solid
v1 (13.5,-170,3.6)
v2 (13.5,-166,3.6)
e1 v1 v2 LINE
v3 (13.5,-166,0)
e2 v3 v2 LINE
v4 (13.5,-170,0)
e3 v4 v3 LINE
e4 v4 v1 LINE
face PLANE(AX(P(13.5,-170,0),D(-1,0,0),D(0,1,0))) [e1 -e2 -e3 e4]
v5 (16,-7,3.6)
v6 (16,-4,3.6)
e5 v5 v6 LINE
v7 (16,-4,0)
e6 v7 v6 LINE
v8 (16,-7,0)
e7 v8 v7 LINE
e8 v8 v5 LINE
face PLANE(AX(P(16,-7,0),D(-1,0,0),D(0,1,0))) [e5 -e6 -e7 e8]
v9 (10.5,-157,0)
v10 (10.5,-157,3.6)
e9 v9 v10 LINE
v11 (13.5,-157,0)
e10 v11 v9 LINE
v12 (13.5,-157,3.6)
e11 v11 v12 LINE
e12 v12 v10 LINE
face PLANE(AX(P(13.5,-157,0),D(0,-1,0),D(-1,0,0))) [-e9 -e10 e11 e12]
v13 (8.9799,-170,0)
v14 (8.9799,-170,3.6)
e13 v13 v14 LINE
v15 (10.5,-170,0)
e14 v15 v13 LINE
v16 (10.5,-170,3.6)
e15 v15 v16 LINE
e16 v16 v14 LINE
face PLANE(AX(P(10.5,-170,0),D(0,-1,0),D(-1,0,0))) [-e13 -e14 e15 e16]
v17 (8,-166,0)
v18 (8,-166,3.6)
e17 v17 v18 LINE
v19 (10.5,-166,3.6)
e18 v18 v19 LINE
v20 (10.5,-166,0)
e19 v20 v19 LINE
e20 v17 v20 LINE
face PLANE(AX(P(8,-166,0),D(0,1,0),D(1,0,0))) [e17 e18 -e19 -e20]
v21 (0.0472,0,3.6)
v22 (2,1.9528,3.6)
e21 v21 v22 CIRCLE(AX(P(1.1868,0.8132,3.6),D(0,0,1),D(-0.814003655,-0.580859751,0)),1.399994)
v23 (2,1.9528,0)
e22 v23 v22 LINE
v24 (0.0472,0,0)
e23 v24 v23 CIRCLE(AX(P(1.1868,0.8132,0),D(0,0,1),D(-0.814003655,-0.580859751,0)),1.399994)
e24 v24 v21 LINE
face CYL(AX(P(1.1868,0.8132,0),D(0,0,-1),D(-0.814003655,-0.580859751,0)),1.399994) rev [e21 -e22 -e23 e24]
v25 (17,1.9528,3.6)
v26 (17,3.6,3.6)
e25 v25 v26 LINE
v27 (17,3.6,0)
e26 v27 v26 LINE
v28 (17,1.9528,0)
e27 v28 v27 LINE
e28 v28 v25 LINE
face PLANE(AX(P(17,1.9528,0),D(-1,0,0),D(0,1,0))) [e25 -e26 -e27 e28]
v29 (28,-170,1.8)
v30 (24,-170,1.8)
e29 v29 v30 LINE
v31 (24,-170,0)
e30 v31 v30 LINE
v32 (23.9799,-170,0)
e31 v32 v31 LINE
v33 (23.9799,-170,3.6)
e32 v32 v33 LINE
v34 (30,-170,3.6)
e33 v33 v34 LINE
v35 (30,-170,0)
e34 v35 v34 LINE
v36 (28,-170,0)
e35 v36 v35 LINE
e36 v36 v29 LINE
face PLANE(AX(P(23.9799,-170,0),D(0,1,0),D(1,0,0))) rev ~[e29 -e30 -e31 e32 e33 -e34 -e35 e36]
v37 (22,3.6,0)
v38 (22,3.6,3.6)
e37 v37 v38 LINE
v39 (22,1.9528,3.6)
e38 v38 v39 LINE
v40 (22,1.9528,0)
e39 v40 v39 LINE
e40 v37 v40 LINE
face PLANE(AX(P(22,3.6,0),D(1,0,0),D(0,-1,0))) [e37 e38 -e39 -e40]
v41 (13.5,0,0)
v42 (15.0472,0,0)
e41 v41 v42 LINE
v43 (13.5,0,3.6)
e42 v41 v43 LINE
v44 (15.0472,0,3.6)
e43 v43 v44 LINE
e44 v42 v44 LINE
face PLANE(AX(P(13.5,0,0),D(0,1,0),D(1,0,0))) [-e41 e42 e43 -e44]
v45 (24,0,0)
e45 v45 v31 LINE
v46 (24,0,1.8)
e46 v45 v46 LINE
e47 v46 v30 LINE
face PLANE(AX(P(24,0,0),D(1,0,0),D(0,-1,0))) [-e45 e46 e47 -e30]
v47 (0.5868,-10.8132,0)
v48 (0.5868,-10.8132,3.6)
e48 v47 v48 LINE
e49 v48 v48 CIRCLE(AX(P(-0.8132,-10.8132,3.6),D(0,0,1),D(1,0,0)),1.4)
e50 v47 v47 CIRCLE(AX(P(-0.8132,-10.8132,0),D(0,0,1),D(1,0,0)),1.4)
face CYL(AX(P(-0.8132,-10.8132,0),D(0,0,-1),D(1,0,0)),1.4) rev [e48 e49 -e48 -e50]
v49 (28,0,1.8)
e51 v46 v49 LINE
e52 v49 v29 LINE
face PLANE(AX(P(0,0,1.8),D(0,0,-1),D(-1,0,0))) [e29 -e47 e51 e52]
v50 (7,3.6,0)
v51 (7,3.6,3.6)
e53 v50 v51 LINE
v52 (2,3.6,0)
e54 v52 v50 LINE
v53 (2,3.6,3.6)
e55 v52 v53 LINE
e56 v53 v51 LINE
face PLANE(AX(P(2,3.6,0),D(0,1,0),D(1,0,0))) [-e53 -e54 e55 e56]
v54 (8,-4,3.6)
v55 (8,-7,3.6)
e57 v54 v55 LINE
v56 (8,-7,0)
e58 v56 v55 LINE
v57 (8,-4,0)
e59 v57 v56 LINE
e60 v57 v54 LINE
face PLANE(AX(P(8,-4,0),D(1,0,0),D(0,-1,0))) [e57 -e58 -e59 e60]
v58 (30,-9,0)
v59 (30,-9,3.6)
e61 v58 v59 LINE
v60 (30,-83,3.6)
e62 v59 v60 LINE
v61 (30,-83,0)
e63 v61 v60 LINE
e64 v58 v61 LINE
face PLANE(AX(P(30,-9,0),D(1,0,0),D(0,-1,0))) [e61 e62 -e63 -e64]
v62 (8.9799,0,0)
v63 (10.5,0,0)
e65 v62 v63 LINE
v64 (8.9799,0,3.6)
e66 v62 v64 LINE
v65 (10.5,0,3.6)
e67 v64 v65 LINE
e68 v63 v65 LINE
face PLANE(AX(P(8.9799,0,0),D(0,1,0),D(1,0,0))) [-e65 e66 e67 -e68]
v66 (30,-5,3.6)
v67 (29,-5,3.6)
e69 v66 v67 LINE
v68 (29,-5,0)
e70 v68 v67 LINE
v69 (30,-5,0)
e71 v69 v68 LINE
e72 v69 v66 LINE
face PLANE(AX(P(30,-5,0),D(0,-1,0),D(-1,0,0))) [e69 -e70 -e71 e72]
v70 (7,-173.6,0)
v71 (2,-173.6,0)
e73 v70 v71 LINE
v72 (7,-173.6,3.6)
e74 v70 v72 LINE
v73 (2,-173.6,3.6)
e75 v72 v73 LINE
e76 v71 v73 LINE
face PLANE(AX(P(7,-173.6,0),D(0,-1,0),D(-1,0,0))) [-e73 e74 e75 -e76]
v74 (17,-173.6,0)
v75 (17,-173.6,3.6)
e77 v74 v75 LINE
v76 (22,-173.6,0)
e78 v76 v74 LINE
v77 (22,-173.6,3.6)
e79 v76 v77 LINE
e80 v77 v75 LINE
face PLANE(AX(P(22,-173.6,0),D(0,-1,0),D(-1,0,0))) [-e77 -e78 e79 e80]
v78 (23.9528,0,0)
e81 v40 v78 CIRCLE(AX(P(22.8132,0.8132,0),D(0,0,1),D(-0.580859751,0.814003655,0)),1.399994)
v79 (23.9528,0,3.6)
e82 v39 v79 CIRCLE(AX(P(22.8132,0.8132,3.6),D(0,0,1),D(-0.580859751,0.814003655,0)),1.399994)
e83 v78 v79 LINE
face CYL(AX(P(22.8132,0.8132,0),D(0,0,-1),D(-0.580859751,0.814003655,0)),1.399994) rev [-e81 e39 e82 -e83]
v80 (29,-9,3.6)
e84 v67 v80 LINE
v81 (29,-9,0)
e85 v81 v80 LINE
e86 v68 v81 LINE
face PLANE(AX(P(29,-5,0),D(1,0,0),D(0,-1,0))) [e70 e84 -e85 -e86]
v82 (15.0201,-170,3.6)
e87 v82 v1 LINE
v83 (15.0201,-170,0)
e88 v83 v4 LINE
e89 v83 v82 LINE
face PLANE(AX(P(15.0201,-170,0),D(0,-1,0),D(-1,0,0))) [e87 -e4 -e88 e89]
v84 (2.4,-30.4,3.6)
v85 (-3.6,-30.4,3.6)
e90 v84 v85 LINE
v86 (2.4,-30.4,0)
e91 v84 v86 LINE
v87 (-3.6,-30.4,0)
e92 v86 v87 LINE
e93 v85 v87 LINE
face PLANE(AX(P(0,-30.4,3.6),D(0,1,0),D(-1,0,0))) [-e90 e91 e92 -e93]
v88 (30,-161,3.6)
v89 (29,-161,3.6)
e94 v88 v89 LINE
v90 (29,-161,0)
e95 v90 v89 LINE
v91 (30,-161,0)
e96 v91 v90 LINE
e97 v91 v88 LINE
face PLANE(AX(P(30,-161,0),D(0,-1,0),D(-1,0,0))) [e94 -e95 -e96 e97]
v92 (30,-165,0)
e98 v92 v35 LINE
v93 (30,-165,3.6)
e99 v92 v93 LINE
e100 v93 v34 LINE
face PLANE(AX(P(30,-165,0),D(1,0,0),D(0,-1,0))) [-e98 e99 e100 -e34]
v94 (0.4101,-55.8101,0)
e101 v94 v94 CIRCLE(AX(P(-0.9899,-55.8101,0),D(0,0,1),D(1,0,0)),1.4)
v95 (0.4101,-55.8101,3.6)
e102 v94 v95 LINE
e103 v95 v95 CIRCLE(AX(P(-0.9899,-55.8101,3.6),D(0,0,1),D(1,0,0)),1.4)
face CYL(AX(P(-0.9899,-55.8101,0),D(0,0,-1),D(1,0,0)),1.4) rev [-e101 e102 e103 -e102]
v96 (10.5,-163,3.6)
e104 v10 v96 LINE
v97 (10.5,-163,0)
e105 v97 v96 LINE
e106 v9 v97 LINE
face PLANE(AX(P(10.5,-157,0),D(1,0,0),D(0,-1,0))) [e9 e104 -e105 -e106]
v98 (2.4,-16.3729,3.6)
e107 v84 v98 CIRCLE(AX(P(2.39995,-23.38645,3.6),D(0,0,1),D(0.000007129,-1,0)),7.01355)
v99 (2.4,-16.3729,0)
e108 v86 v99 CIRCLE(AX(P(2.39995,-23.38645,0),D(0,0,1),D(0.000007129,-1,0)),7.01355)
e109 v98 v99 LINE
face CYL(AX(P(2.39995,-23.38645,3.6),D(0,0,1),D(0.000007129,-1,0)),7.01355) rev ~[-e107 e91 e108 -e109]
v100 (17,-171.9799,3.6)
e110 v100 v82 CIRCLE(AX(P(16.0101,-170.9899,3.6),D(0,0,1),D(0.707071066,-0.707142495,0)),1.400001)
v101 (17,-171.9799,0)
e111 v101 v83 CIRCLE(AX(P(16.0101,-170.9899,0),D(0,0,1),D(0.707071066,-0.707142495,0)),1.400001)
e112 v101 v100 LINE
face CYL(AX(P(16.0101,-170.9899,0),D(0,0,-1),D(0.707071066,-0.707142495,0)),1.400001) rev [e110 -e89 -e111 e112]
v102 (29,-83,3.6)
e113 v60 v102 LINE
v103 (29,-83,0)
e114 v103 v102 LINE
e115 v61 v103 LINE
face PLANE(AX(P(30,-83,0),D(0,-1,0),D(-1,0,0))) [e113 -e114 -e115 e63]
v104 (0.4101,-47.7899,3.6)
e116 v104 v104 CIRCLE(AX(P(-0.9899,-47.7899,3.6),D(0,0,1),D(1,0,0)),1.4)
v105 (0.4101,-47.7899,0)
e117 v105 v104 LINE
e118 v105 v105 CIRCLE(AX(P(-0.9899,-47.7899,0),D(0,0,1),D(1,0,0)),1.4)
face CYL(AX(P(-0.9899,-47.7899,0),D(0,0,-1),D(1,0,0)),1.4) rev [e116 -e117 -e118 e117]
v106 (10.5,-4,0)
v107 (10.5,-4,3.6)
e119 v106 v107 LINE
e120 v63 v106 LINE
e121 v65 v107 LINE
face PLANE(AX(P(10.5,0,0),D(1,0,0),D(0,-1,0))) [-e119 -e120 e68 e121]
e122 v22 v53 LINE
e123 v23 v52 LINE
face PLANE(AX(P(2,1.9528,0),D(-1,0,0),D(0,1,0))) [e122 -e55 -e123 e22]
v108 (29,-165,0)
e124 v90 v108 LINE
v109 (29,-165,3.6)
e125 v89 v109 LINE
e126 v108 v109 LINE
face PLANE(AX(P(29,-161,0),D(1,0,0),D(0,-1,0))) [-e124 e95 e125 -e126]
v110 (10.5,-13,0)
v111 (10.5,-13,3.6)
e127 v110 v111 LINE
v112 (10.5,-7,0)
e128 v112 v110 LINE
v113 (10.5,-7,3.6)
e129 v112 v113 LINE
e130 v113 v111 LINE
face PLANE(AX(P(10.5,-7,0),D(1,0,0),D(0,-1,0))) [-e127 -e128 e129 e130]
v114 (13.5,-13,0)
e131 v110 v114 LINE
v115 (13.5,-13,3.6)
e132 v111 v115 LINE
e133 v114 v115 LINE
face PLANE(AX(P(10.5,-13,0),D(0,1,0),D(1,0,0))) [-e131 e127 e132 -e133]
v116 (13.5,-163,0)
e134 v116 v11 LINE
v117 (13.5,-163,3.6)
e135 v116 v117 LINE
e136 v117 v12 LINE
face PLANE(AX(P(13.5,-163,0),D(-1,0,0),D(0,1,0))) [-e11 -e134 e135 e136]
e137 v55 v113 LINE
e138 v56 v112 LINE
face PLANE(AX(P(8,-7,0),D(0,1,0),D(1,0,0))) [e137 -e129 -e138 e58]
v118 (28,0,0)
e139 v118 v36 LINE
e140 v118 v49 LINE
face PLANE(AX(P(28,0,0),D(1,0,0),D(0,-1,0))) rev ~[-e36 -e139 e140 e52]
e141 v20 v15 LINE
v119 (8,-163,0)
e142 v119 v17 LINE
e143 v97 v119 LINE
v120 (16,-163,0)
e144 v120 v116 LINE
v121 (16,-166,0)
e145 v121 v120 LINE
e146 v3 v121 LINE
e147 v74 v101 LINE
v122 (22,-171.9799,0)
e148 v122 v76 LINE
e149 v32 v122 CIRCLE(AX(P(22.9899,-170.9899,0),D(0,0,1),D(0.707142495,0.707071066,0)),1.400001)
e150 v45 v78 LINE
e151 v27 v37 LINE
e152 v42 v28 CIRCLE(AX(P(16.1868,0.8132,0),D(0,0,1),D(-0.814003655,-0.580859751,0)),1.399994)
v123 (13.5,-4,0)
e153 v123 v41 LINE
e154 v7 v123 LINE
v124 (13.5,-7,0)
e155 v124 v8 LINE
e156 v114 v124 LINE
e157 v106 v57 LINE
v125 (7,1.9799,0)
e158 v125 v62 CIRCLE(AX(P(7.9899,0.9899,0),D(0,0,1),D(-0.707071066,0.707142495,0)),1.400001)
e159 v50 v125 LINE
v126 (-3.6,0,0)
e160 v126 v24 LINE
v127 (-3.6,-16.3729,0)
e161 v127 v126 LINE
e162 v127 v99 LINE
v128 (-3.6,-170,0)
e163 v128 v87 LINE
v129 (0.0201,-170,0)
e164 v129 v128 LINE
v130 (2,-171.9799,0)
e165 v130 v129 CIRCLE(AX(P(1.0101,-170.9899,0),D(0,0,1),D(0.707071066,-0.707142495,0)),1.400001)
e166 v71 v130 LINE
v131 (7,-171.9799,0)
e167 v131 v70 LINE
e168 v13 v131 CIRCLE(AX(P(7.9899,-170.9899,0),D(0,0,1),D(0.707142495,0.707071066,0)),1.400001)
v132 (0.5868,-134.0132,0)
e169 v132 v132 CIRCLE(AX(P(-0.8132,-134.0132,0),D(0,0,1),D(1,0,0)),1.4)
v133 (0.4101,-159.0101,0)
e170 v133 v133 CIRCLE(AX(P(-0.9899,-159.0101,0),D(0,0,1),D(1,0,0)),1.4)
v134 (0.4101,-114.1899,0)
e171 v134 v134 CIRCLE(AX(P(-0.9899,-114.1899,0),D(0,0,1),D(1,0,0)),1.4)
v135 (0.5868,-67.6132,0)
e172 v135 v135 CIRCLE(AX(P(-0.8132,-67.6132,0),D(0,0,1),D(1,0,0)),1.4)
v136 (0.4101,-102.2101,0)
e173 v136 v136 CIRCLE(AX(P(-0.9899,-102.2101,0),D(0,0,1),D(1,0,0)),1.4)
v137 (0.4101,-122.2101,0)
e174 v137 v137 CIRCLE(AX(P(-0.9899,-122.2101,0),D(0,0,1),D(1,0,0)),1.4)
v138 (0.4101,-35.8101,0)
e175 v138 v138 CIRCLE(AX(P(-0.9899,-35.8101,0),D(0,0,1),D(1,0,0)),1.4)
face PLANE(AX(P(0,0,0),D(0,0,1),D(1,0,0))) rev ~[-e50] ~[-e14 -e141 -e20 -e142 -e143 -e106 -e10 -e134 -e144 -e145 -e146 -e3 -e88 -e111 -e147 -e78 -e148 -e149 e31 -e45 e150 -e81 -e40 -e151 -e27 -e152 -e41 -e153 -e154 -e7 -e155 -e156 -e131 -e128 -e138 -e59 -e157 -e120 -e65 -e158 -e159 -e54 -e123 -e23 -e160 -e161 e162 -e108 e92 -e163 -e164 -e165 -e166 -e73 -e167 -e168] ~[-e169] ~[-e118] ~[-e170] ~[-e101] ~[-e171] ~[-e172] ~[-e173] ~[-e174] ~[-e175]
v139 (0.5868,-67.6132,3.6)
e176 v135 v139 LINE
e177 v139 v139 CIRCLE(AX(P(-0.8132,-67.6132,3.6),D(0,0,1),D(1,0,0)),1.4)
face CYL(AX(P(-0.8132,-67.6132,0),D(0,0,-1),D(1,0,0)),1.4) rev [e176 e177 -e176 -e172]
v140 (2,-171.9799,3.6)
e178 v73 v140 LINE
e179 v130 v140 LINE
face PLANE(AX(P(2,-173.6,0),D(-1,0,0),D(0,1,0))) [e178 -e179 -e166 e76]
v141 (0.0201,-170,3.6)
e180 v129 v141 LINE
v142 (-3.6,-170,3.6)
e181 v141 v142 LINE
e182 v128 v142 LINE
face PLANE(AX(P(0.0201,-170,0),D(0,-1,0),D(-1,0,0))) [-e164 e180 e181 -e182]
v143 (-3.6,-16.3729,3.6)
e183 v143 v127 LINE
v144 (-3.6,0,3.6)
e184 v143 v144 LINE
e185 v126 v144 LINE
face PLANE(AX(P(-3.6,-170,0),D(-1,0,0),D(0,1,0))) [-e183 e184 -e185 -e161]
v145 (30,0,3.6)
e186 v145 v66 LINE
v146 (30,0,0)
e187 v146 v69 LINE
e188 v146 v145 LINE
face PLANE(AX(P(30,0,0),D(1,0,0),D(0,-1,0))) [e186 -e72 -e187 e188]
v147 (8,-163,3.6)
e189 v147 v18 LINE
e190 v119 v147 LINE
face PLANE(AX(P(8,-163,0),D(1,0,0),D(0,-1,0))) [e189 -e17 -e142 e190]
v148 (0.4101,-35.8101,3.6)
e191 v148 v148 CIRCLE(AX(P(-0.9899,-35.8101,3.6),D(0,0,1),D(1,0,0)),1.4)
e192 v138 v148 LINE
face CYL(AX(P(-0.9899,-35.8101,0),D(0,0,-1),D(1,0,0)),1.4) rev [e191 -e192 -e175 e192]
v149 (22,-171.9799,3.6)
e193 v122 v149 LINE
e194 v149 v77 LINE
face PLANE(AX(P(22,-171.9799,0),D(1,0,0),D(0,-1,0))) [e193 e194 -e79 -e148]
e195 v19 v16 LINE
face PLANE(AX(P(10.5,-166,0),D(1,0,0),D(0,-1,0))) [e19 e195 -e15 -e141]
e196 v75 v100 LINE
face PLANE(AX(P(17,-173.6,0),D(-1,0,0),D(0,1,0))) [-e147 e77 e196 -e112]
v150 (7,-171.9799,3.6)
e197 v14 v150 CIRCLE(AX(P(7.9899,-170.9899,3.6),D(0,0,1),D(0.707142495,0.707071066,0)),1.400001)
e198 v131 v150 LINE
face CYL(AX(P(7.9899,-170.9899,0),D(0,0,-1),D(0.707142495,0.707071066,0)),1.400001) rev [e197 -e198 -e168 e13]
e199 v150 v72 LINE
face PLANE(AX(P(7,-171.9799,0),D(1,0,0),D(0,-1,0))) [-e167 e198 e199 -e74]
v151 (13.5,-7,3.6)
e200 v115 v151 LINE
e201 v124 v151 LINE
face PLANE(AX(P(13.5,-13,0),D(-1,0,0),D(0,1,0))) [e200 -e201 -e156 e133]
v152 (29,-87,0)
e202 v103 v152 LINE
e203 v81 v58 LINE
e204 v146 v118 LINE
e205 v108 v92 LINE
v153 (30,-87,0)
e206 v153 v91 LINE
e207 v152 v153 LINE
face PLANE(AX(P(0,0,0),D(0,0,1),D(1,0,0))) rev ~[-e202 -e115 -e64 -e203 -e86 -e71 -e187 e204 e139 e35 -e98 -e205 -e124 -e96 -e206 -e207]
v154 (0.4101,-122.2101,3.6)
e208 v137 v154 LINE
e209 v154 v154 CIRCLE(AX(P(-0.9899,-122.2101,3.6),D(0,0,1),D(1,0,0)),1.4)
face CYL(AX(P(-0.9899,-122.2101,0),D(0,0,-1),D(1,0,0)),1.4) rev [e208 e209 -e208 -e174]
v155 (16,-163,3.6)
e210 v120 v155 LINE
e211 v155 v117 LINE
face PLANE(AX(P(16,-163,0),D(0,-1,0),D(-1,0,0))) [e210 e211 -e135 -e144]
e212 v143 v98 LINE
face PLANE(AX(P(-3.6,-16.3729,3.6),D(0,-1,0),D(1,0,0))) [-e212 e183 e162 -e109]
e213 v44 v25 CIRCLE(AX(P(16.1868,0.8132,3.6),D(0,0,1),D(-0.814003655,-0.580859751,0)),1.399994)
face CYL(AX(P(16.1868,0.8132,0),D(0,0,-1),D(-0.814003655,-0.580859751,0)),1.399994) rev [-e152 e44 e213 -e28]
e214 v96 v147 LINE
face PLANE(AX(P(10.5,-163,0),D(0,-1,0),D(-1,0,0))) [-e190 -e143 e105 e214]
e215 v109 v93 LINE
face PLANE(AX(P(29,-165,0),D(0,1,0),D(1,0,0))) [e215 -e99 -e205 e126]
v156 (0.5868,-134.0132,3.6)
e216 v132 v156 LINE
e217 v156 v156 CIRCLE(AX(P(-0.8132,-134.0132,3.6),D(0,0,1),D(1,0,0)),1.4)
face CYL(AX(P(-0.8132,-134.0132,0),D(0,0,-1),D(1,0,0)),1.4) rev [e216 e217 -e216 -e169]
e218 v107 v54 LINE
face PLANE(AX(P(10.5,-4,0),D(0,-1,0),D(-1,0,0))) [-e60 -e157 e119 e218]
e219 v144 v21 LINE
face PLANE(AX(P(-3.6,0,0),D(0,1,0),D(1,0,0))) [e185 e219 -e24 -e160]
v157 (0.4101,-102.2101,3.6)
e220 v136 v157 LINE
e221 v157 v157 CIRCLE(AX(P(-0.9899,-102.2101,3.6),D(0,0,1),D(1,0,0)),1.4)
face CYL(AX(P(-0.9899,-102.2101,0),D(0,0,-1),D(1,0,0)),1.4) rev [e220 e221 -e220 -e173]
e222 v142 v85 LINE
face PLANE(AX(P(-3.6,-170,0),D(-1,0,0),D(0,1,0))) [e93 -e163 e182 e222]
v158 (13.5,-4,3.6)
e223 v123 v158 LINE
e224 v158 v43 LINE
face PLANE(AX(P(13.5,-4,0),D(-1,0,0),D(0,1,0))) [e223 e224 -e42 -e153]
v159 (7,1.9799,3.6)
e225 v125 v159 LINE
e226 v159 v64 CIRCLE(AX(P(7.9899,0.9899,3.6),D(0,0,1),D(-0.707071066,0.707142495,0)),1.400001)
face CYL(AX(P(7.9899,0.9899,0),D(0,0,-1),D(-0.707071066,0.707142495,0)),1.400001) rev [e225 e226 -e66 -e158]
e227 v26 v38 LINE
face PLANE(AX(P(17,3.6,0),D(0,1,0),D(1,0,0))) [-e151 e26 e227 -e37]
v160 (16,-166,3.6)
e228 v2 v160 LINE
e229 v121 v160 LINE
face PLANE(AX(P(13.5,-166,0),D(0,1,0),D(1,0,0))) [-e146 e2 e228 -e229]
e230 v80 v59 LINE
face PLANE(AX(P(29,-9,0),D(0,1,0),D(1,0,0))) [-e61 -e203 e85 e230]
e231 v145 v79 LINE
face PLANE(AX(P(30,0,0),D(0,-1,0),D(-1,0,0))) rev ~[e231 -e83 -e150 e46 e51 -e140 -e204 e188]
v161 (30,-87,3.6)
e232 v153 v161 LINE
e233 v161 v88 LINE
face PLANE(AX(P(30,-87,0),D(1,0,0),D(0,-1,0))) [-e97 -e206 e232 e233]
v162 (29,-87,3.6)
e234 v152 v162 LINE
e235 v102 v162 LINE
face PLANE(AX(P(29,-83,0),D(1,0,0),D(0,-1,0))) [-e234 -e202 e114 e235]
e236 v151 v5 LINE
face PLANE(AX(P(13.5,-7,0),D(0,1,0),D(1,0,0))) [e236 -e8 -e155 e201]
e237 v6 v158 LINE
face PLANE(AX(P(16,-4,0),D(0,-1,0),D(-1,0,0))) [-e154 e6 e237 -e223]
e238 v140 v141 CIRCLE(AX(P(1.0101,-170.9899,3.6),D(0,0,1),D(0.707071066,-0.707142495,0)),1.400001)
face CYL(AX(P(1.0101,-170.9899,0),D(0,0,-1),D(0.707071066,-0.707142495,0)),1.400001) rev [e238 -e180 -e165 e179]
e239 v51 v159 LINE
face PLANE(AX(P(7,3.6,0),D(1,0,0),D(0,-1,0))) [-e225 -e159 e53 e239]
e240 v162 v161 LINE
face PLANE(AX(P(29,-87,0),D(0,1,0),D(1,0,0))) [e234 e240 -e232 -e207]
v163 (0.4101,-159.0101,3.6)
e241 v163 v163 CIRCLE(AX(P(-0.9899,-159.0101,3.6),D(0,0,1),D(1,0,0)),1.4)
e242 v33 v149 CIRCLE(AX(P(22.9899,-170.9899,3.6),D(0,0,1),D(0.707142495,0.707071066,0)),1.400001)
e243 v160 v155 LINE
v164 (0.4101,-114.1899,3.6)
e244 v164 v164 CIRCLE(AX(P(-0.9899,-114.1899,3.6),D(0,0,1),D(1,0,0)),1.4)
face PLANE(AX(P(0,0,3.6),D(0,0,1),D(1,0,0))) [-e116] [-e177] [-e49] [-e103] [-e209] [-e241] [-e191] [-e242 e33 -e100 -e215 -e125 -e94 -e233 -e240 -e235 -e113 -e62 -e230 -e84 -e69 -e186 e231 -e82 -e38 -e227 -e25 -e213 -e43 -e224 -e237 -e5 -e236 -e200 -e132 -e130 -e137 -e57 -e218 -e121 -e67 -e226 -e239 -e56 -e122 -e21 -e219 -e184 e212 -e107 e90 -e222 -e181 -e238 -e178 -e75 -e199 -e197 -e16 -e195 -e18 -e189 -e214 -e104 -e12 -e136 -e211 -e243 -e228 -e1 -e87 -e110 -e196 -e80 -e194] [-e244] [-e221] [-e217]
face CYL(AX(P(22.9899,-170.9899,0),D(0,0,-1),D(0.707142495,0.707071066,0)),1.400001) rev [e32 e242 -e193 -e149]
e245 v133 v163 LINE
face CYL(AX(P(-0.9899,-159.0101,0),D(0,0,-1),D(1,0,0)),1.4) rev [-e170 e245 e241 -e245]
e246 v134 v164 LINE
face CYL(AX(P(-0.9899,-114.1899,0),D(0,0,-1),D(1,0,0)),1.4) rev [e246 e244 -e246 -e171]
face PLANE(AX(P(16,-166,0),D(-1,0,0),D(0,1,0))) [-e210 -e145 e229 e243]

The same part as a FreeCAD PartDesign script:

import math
import FreeCAD as App
import Part
import Sketcher
from FreeCAD import Vector
Q = App.Units.Quantity


def add_polygon(sketch, points):
    """Adds a closed chain of lines whose ends are joined by coincident constraints."""
    first, n = sketch.GeometryCount, len(points)
    for a, b in zip(points, points[1:] + points[:1]):
        sketch.addGeometry(Part.LineSegment(App.Vector(*a, 0), App.Vector(*b, 0)), False)
    for i in range(n):
        sketch.addConstraint(Sketcher.Constraint("Coincident", first + i, 2, first + (i + 1) % n, 1))

doc = App.newDocument("Part")
body = doc.addObject("PartDesign::Body", "Body")

# Sketch on XY plane
sketch1 = body.newObject("Sketcher::SketchObject", "Sketch")
sketch1.AttachmentSupport = (doc.getObject("XY_Plane"), [""])
sketch1.MapMode = "FlatFace"
sketch1.addGeometry(Part.LineSegment(Vector(30, -5, 0), Vector(30, 0, 0)), False)
sketch1.addGeometry(Part.LineSegment(Vector(30, 0, 0), Vector(23.9528, 0, 0)), False)
sketch1.addGeometry(Part.ArcOfCircle(Part.Circle(Vector(22.8132, 0.8132, 0), Vector(0, 0, 1), 1.399994), math.radians(125.511036), math.radians(324.488964)), False)
sketch1.addGeometry(Part.LineSegment(Vector(22, 1.9528, 0), Vector(22, 3.6, 0)), False)
sketch1.addGeometry(Part.LineSegment(Vector(22, 3.6, 0), Vector(17, 3.6, 0)), False)
sketch1.addGeometry(Part.LineSegment(Vector(17, 3.6, 0), Vector(17, 1.9528, 0)), False)
sketch1.addGeometry(Part.ArcOfCircle(Part.Circle(Vector(16.1868, 0.8132, 0), Vector(0, 0, 1), 1.399994), math.radians(-144.488964), math.radians(54.488964)), False)
sketch1.addGeometry(Part.LineSegment(Vector(15.0472, 0, 0), Vector(13.5, 0, 0)), False)
sketch1.addGeometry(Part.LineSegment(Vector(13.5, 0, 0), Vector(13.5, -4, 0)), False)
sketch1.addGeometry(Part.LineSegment(Vector(13.5, -4, 0), Vector(16, -4, 0)), False)
sketch1.addGeometry(Part.LineSegment(Vector(16, -4, 0), Vector(16, -7, 0)), False)
sketch1.addGeometry(Part.LineSegment(Vector(16, -7, 0), Vector(13.5, -7, 0)), False)
sketch1.addGeometry(Part.LineSegment(Vector(13.5, -7, 0), Vector(13.5, -13, 0)), False)
sketch1.addGeometry(Part.LineSegment(Vector(13.5, -13, 0), Vector(10.5, -13, 0)), False)
sketch1.addGeometry(Part.LineSegment(Vector(10.5, -13, 0), Vector(10.5, -7, 0)), False)
sketch1.addGeometry(Part.LineSegment(Vector(10.5, -7, 0), Vector(8, -7, 0)), False)
sketch1.addGeometry(Part.LineSegment(Vector(8, -7, 0), Vector(8, -4, 0)), False)
sketch1.addGeometry(Part.LineSegment(Vector(8, -4, 0), Vector(10.5, -4, 0)), False)
sketch1.addGeometry(Part.LineSegment(Vector(10.5, -4, 0), Vector(10.5, 0, 0)), False)
sketch1.addGeometry(Part.LineSegment(Vector(10.5, 0, 0), Vector(8.9799, 0, 0)), False)
sketch1.addGeometry(Part.ArcOfCircle(Part.Circle(Vector(7.9899, 0.9899, 0), Vector(0, 0, 1), 1.400001), math.radians(134.997106), math.radians(315.002894)), False)
sketch1.addGeometry(Part.LineSegment(Vector(7, 1.9799, 0), Vector(7, 3.6, 0)), False)
sketch1.addGeometry(Part.LineSegment(Vector(7, 3.6, 0), Vector(2, 3.6, 0)), False)
sketch1.addGeometry(Part.LineSegment(Vector(2, 3.6, 0), Vector(2, 1.9528, 0)), False)
sketch1.addGeometry(Part.ArcOfCircle(Part.Circle(Vector(1.1868, 0.8132, 0), Vector(0, 0, 1), 1.399994), math.radians(-144.488964), math.radians(54.488964)), False)
sketch1.addGeometry(Part.LineSegment(Vector(0.0472, 0, 0), Vector(-3.6, 0, 0)), False)
sketch1.addGeometry(Part.LineSegment(Vector(-3.6, 0, 0), Vector(-3.6, -170, 0)), False)
sketch1.addGeometry(Part.LineSegment(Vector(-3.6, -170, 0), Vector(0.0201, -170, 0)), False)
sketch1.addGeometry(Part.ArcOfCircle(Part.Circle(Vector(1.0101, -170.9899, 0), Vector(0, 0, 1), 1.400001), math.radians(-45.002894), math.radians(135.002894)), False)
sketch1.addGeometry(Part.LineSegment(Vector(2, -171.9799, 0), Vector(2, -173.6, 0)), False)
sketch1.addGeometry(Part.LineSegment(Vector(2, -173.6, 0), Vector(7, -173.6, 0)), False)
sketch1.addGeometry(Part.LineSegment(Vector(7, -173.6, 0), Vector(7, -171.9799, 0)), False)
sketch1.addGeometry(Part.ArcOfCircle(Part.Circle(Vector(7.9899, -170.9899, 0), Vector(0, 0, 1), 1.400001), math.radians(44.997106), math.radians(225.002894)), False)
sketch1.addGeometry(Part.LineSegment(Vector(8.9799, -170, 0), Vector(10.5, -170, 0)), False)
sketch1.addGeometry(Part.LineSegment(Vector(10.5, -170, 0), Vector(10.5, -166, 0)), False)
sketch1.addGeometry(Part.LineSegment(Vector(10.5, -166, 0), Vector(8, -166, 0)), False)
sketch1.addGeometry(Part.LineSegment(Vector(8, -166, 0), Vector(8, -163, 0)), False)
sketch1.addGeometry(Part.LineSegment(Vector(8, -163, 0), Vector(10.5, -163, 0)), False)
sketch1.addGeometry(Part.LineSegment(Vector(10.5, -163, 0), Vector(10.5, -157, 0)), False)
sketch1.addGeometry(Part.LineSegment(Vector(10.5, -157, 0), Vector(13.5, -157, 0)), False)
sketch1.addGeometry(Part.LineSegment(Vector(13.5, -157, 0), Vector(13.5, -163, 0)), False)
sketch1.addGeometry(Part.LineSegment(Vector(13.5, -163, 0), Vector(16, -163, 0)), False)
sketch1.addGeometry(Part.LineSegment(Vector(16, -163, 0), Vector(16, -166, 0)), False)
sketch1.addGeometry(Part.LineSegment(Vector(16, -166, 0), Vector(13.5, -166, 0)), False)
sketch1.addGeometry(Part.LineSegment(Vector(13.5, -166, 0), Vector(13.5, -170, 0)), False)
sketch1.addGeometry(Part.LineSegment(Vector(13.5, -170, 0), Vector(15.0201, -170, 0)), False)
sketch1.addGeometry(Part.ArcOfCircle(Part.Circle(Vector(16.0101, -170.9899, 0), Vector(0, 0, 1), 1.400001), math.radians(-45.002894), math.radians(135.002894)), False)
sketch1.addGeometry(Part.LineSegment(Vector(17, -171.9799, 0), Vector(17, -173.6, 0)), False)
sketch1.addGeometry(Part.LineSegment(Vector(17, -173.6, 0), Vector(22, -173.6, 0)), False)
sketch1.addGeometry(Part.LineSegment(Vector(22, -173.6, 0), Vector(22, -171.9799, 0)), False)
sketch1.addGeometry(Part.ArcOfCircle(Part.Circle(Vector(22.9899, -170.9899, 0), Vector(0, 0, 1), 1.400001), math.radians(44.997106), math.radians(225.002894)), False)
sketch1.addGeometry(Part.LineSegment(Vector(23.9799, -170, 0), Vector(30, -170, 0)), False)
sketch1.addGeometry(Part.LineSegment(Vector(30, -170, 0), Vector(30, -165, 0)), False)
sketch1.addGeometry(Part.LineSegment(Vector(30, -165, 0), Vector(29, -165, 0)), False)
sketch1.addGeometry(Part.LineSegment(Vector(29, -165, 0), Vector(29, -161, 0)), False)
sketch1.addGeometry(Part.LineSegment(Vector(29, -161, 0), Vector(30, -161, 0)), False)
sketch1.addGeometry(Part.LineSegment(Vector(30, -161, 0), Vector(30, -87, 0)), False)
sketch1.addGeometry(Part.LineSegment(Vector(30, -87, 0), Vector(29, -87, 0)), False)
sketch1.addGeometry(Part.LineSegment(Vector(29, -87, 0), Vector(29, -83, 0)), False)
sketch1.addGeometry(Part.LineSegment(Vector(29, -83, 0), Vector(30, -83, 0)), False)
sketch1.addGeometry(Part.LineSegment(Vector(30, -83, 0), Vector(30, -9, 0)), False)
sketch1.addGeometry(Part.LineSegment(Vector(30, -9, 0), Vector(29, -9, 0)), False)
sketch1.addGeometry(Part.LineSegment(Vector(29, -9, 0), Vector(29, -5, 0)), False)
sketch1.addGeometry(Part.LineSegment(Vector(29, -5, 0), Vector(30, -5, 0)), False)
sketch1.addGeometry(Part.Circle(Vector(-0.9899, -159.0101, 0), Vector(0, 0, 1), 1.4), False)
sketch1.addGeometry(Part.Circle(Vector(-0.8132, -134.0132, 0), Vector(0, 0, 1), 1.4), False)
sketch1.addGeometry(Part.Circle(Vector(-0.9899, -122.2101, 0), Vector(0, 0, 1), 1.4), False)
sketch1.addGeometry(Part.Circle(Vector(-0.9899, -114.1899, 0), Vector(0, 0, 1), 1.4), False)
sketch1.addGeometry(Part.Circle(Vector(-0.9899, -102.2101, 0), Vector(0, 0, 1), 1.4), False)
sketch1.addGeometry(Part.Circle(Vector(-0.8132, -67.6132, 0), Vector(0, 0, 1), 1.4), False)
sketch1.addGeometry(Part.Circle(Vector(-0.9899, -55.8101, 0), Vector(0, 0, 1), 1.4), False)
sketch1.addGeometry(Part.Circle(Vector(-0.9899, -47.7899, 0), Vector(0, 0, 1), 1.4), False)
sketch1.addGeometry(Part.Circle(Vector(-0.9899, -35.8101, 0), Vector(0, 0, 1), 1.4), False)
sketch1.addGeometry(Part.Circle(Vector(-0.8132, -10.8132, 0), Vector(0, 0, 1), 1.4), False)
sketch1.addConstraint(Sketcher.Constraint("Coincident", 0, 2, 1, 1))
sketch1.addConstraint(Sketcher.Constraint("Coincident", 1, 2, 2, 2))
sketch1.addConstraint(Sketcher.Constraint("Coincident", 2, 1, 3, 1))
sketch1.addConstraint(Sketcher.Constraint("Coincident", 3, 2, 4, 1))
sketch1.addConstraint(Sketcher.Constraint("Coincident", 4, 2, 5, 1))
sketch1.addConstraint(Sketcher.Constraint("Coincident", 5, 2, 6, 2))
sketch1.addConstraint(Sketcher.Constraint("Coincident", 6, 1, 7, 1))
sketch1.addConstraint(Sketcher.Constraint("Coincident", 7, 2, 8, 1))
sketch1.addConstraint(Sketcher.Constraint("Coincident", 8, 2, 9, 1))
sketch1.addConstraint(Sketcher.Constraint("Coincident", 9, 2, 10, 1))
sketch1.addConstraint(Sketcher.Constraint("Coincident", 10, 2, 11, 1))
sketch1.addConstraint(Sketcher.Constraint("Coincident", 11, 2, 12, 1))
sketch1.addConstraint(Sketcher.Constraint("Coincident", 12, 2, 13, 1))
sketch1.addConstraint(Sketcher.Constraint("Coincident", 13, 2, 14, 1))
sketch1.addConstraint(Sketcher.Constraint("Coincident", 14, 2, 15, 1))
sketch1.addConstraint(Sketcher.Constraint("Coincident", 15, 2, 16, 1))
sketch1.addConstraint(Sketcher.Constraint("Coincident", 16, 2, 17, 1))
sketch1.addConstraint(Sketcher.Constraint("Coincident", 17, 2, 18, 1))
sketch1.addConstraint(Sketcher.Constraint("Coincident", 18, 2, 19, 1))
sketch1.addConstraint(Sketcher.Constraint("Coincident", 19, 2, 20, 2))
sketch1.addConstraint(Sketcher.Constraint("Coincident", 20, 1, 21, 1))
sketch1.addConstraint(Sketcher.Constraint("Coincident", 21, 2, 22, 1))
sketch1.addConstraint(Sketcher.Constraint("Coincident", 22, 2, 23, 1))
sketch1.addConstraint(Sketcher.Constraint("Coincident", 23, 2, 24, 2))
sketch1.addConstraint(Sketcher.Constraint("Coincident", 24, 1, 25, 1))
sketch1.addConstraint(Sketcher.Constraint("Coincident", 25, 2, 26, 1))
sketch1.addConstraint(Sketcher.Constraint("Coincident", 26, 2, 27, 1))
sketch1.addConstraint(Sketcher.Constraint("Coincident", 27, 2, 28, 2))
sketch1.addConstraint(Sketcher.Constraint("Coincident", 28, 1, 29, 1))
sketch1.addConstraint(Sketcher.Constraint("Coincident", 29, 2, 30, 1))
sketch1.addConstraint(Sketcher.Constraint("Coincident", 30, 2, 31, 1))
sketch1.addConstraint(Sketcher.Constraint("Coincident", 31, 2, 32, 2))
sketch1.addConstraint(Sketcher.Constraint("Coincident", 32, 1, 33, 1))
sketch1.addConstraint(Sketcher.Constraint("Coincident", 33, 2, 34, 1))
sketch1.addConstraint(Sketcher.Constraint("Coincident", 34, 2, 35, 1))
sketch1.addConstraint(Sketcher.Constraint("Coincident", 35, 2, 36, 1))
sketch1.addConstraint(Sketcher.Constraint("Coincident", 36, 2, 37, 1))
sketch1.addConstraint(Sketcher.Constraint("Coincident", 37, 2, 38, 1))
sketch1.addConstraint(Sketcher.Constraint("Coincident", 38, 2, 39, 1))
sketch1.addConstraint(Sketcher.Constraint("Coincident", 39, 2, 40, 1))
sketch1.addConstraint(Sketcher.Constraint("Coincident", 40, 2, 41, 1))
sketch1.addConstraint(Sketcher.Constraint("Coincident", 41, 2, 42, 1))
sketch1.addConstraint(Sketcher.Constraint("Coincident", 42, 2, 43, 1))
sketch1.addConstraint(Sketcher.Constraint("Coincident", 43, 2, 44, 1))
sketch1.addConstraint(Sketcher.Constraint("Coincident", 44, 2, 45, 1))
sketch1.addConstraint(Sketcher.Constraint("Coincident", 45, 2, 46, 2))
sketch1.addConstraint(Sketcher.Constraint("Coincident", 46, 1, 47, 1))
sketch1.addConstraint(Sketcher.Constraint("Coincident", 47, 2, 48, 1))
sketch1.addConstraint(Sketcher.Constraint("Coincident", 48, 2, 49, 1))
sketch1.addConstraint(Sketcher.Constraint("Coincident", 49, 2, 50, 2))
sketch1.addConstraint(Sketcher.Constraint("Coincident", 50, 1, 51, 1))
sketch1.addConstraint(Sketcher.Constraint("Coincident", 51, 2, 52, 1))
sketch1.addConstraint(Sketcher.Constraint("Coincident", 52, 2, 53, 1))
sketch1.addConstraint(Sketcher.Constraint("Coincident", 53, 2, 54, 1))
sketch1.addConstraint(Sketcher.Constraint("Coincident", 54, 2, 55, 1))
sketch1.addConstraint(Sketcher.Constraint("Coincident", 55, 2, 56, 1))
sketch1.addConstraint(Sketcher.Constraint("Coincident", 56, 2, 57, 1))
sketch1.addConstraint(Sketcher.Constraint("Coincident", 57, 2, 58, 1))
sketch1.addConstraint(Sketcher.Constraint("Coincident", 58, 2, 59, 1))
sketch1.addConstraint(Sketcher.Constraint("Coincident", 59, 2, 60, 1))
sketch1.addConstraint(Sketcher.Constraint("Coincident", 60, 2, 61, 1))
sketch1.addConstraint(Sketcher.Constraint("Coincident", 61, 2, 62, 1))
sketch1.addConstraint(Sketcher.Constraint("Coincident", 62, 2, 63, 1))
sketch1.addConstraint(Sketcher.Constraint("Coincident", 63, 2, 0, 1))
sketch1.addConstraint(Sketcher.Constraint("Vertical", 0))
sketch1.addConstraint(Sketcher.Constraint("Horizontal", 1))
sketch1.addConstraint(Sketcher.Constraint("Vertical", 3))
sketch1.addConstraint(Sketcher.Constraint("Horizontal", 4))
sketch1.addConstraint(Sketcher.Constraint("Vertical", 5))
sketch1.addConstraint(Sketcher.Constraint("Horizontal", 7))
sketch1.addConstraint(Sketcher.Constraint("Vertical", 8))
sketch1.addConstraint(Sketcher.Constraint("Horizontal", 9))
sketch1.addConstraint(Sketcher.Constraint("Vertical", 10))
sketch1.addConstraint(Sketcher.Constraint("Horizontal", 11))
sketch1.addConstraint(Sketcher.Constraint("Vertical", 12))
sketch1.addConstraint(Sketcher.Constraint("Horizontal", 13))
sketch1.addConstraint(Sketcher.Constraint("Vertical", 14))
sketch1.addConstraint(Sketcher.Constraint("Horizontal", 15))
sketch1.addConstraint(Sketcher.Constraint("Vertical", 16))
sketch1.addConstraint(Sketcher.Constraint("Horizontal", 17))
sketch1.addConstraint(Sketcher.Constraint("Vertical", 18))
sketch1.addConstraint(Sketcher.Constraint("Horizontal", 19))
sketch1.addConstraint(Sketcher.Constraint("Vertical", 21))
sketch1.addConstraint(Sketcher.Constraint("Horizontal", 22))
sketch1.addConstraint(Sketcher.Constraint("Vertical", 23))
sketch1.addConstraint(Sketcher.Constraint("Horizontal", 25))
sketch1.addConstraint(Sketcher.Constraint("Vertical", 26))
sketch1.addConstraint(Sketcher.Constraint("Horizontal", 27))
sketch1.addConstraint(Sketcher.Constraint("Vertical", 29))
sketch1.addConstraint(Sketcher.Constraint("Horizontal", 30))
sketch1.addConstraint(Sketcher.Constraint("Vertical", 31))
sketch1.addConstraint(Sketcher.Constraint("Horizontal", 33))
sketch1.addConstraint(Sketcher.Constraint("Vertical", 34))
sketch1.addConstraint(Sketcher.Constraint("Horizontal", 35))
sketch1.addConstraint(Sketcher.Constraint("Vertical", 36))
sketch1.addConstraint(Sketcher.Constraint("Horizontal", 37))
sketch1.addConstraint(Sketcher.Constraint("Vertical", 38))
sketch1.addConstraint(Sketcher.Constraint("Horizontal", 39))
sketch1.addConstraint(Sketcher.Constraint("Vertical", 40))
sketch1.addConstraint(Sketcher.Constraint("Horizontal", 41))
sketch1.addConstraint(Sketcher.Constraint("Vertical", 42))
sketch1.addConstraint(Sketcher.Constraint("Horizontal", 43))
sketch1.addConstraint(Sketcher.Constraint("Vertical", 44))
sketch1.addConstraint(Sketcher.Constraint("Horizontal", 45))
sketch1.addConstraint(Sketcher.Constraint("Vertical", 47))
sketch1.addConstraint(Sketcher.Constraint("Horizontal", 48))
sketch1.addConstraint(Sketcher.Constraint("Vertical", 49))
sketch1.addConstraint(Sketcher.Constraint("Horizontal", 51))
sketch1.addConstraint(Sketcher.Constraint("Vertical", 52))
sketch1.addConstraint(Sketcher.Constraint("Horizontal", 53))
sketch1.addConstraint(Sketcher.Constraint("Vertical", 54))
sketch1.addConstraint(Sketcher.Constraint("Horizontal", 55))
sketch1.addConstraint(Sketcher.Constraint("Vertical", 56))
sketch1.addConstraint(Sketcher.Constraint("Horizontal", 57))
sketch1.addConstraint(Sketcher.Constraint("Vertical", 58))
sketch1.addConstraint(Sketcher.Constraint("Horizontal", 59))
sketch1.addConstraint(Sketcher.Constraint("Vertical", 60))
sketch1.addConstraint(Sketcher.Constraint("Horizontal", 61))
sketch1.addConstraint(Sketcher.Constraint("Vertical", 62))
sketch1.addConstraint(Sketcher.Constraint("Horizontal", 63))
sketch1.addConstraint(Sketcher.Constraint("Equal", 2, 6))
sketch1.addConstraint(Sketcher.Constraint("Equal", 6, 20))
sketch1.addConstraint(Sketcher.Constraint("Equal", 20, 24))
sketch1.addConstraint(Sketcher.Constraint("Equal", 24, 28))
sketch1.addConstraint(Sketcher.Constraint("Equal", 28, 32))
sketch1.addConstraint(Sketcher.Constraint("Equal", 32, 46))
sketch1.addConstraint(Sketcher.Constraint("Equal", 46, 50))
sketch1.addConstraint(Sketcher.Constraint("Equal", 50, 64))
sketch1.addConstraint(Sketcher.Constraint("Equal", 64, 65))
sketch1.addConstraint(Sketcher.Constraint("Equal", 65, 66))
sketch1.addConstraint(Sketcher.Constraint("Equal", 66, 67))
sketch1.addConstraint(Sketcher.Constraint("Equal", 67, 68))
sketch1.addConstraint(Sketcher.Constraint("Equal", 68, 69))
sketch1.addConstraint(Sketcher.Constraint("Equal", 69, 70))
sketch1.addConstraint(Sketcher.Constraint("Equal", 70, 71))
sketch1.addConstraint(Sketcher.Constraint("Equal", 71, 72))
sketch1.addConstraint(Sketcher.Constraint("Equal", 72, 73))
sketch1.addConstraint(Sketcher.Constraint("PointOnObject", 0, 2, -1))
sketch1.addConstraint(Sketcher.Constraint("PointOnObject", 6, 1, -1))
sketch1.addConstraint(Sketcher.Constraint("PointOnObject", 18, 2, -1))
sketch1.addConstraint(Sketcher.Constraint("PointOnObject", 24, 1, -1))
sketch1.addConstraint(Sketcher.Constraint("Horizontal", 2, 3, 6, 3))
sketch1.addConstraint(Sketcher.Constraint("Horizontal", 6, 3, 24, 3))
sketch1.addConstraint(Sketcher.Constraint("Horizontal", 28, 3, 32, 3))
sketch1.addConstraint(Sketcher.Constraint("Horizontal", 32, 3, 46, 3))
sketch1.addConstraint(Sketcher.Constraint("Horizontal", 46, 3, 50, 3))
sketch1.addConstraint(Sketcher.Constraint("Horizontal", 2, 1, 5, 2))
sketch1.addConstraint(Sketcher.Constraint("Horizontal", 11, 2, 14, 2))
sketch1.addConstraint(Sketcher.Constraint("Horizontal", 9, 2, 16, 2))
sketch1.addConstraint(Sketcher.Constraint("Horizontal", 4, 2, 21, 2))
sketch1.addConstraint(Sketcher.Constraint("Horizontal", 5, 2, 23, 2))
sketch1.addConstraint(Sketcher.Constraint("Horizontal", 28, 1, 31, 2))
sketch1.addConstraint(Sketcher.Constraint("Horizontal", 27, 2, 32, 1))
sketch1.addConstraint(Sketcher.Constraint("Horizontal", 37, 2, 40, 2))
sketch1.addConstraint(Sketcher.Constraint("Horizontal", 35, 2, 42, 2))
sketch1.addConstraint(Sketcher.Constraint("Horizontal", 33, 2, 44, 2))
sketch1.addConstraint(Sketcher.Constraint("Horizontal", 31, 2, 46, 1))
sketch1.addConstraint(Sketcher.Constraint("Horizontal", 30, 2, 47, 2))
sketch1.addConstraint(Sketcher.Constraint("Horizontal", 46, 1, 49, 2))
sketch1.addConstraint(Sketcher.Constraint("Horizontal", 45, 2, 50, 1))
sketch1.addConstraint(Sketcher.Constraint("Vertical", 20, 3, 32, 3))
sketch1.addConstraint(Sketcher.Constraint("Vertical", 64, 3, 66, 3))
sketch1.addConstraint(Sketcher.Constraint("Vertical", 66, 3, 67, 3))
sketch1.addConstraint(Sketcher.Constraint("Vertical", 67, 3, 68, 3))
sketch1.addConstraint(Sketcher.Constraint("Vertical", 65, 3, 69, 3))
sketch1.addConstraint(Sketcher.Constraint("Vertical", 68, 3, 70, 3))
sketch1.addConstraint(Sketcher.Constraint("Vertical", 70, 3, 71, 3))
sketch1.addConstraint(Sketcher.Constraint("Vertical", 71, 3, 72, 3))
sketch1.addConstraint(Sketcher.Constraint("Vertical", 69, 3, 73, 3))
sketch1.addConstraint(Sketcher.Constraint("Vertical", 8, 2, 11, 2))
sketch1.addConstraint(Sketcher.Constraint("Vertical", 14, 2, 17, 2))
sketch1.addConstraint(Sketcher.Constraint("Vertical", 23, 2, 28, 1))
sketch1.addConstraint(Sketcher.Constraint("Vertical", 21, 2, 30, 2))
sketch1.addConstraint(Sketcher.Constraint("Vertical", 19, 2, 32, 1))
sketch1.addConstraint(Sketcher.Constraint("Vertical", 18, 2, 33, 2))
sketch1.addConstraint(Sketcher.Constraint("Vertical", 16, 2, 35, 2))
sketch1.addConstraint(Sketcher.Constraint("Vertical", 34, 2, 37, 2))
sketch1.addConstraint(Sketcher.Constraint("Vertical", 12, 2, 39, 2))
sketch1.addConstraint(Sketcher.Constraint("Vertical", 10, 2, 41, 2))
sketch1.addConstraint(Sketcher.Constraint("Vertical", 40, 2, 43, 2))
sketch1.addConstraint(Sketcher.Constraint("Vertical", 5, 2, 46, 1))
sketch1.addConstraint(Sketcher.Constraint("Vertical", 3, 2, 48, 2))
sketch1.addConstraint(Sketcher.Constraint("Vertical", 0, 2, 51, 2))
sketch1.addConstraint(Sketcher.Constraint("Vertical", 52, 2, 55, 2))
sketch1.addConstraint(Sketcher.Constraint("Vertical", 54, 2, 57, 2))
sketch1.addConstraint(Sketcher.Constraint("Vertical", 56, 2, 59, 2))
sketch1.addConstraint(Sketcher.Constraint("Vertical", 58, 2, 61, 2))
sketch1.addConstraint(Sketcher.Constraint("Equal", 11, 15))
sketch1.addConstraint(Sketcher.Constraint("Equal", 4, 22))
sketch1.addConstraint(Sketcher.Constraint("Equal", 33, 45))
sketch1.addConstraint(Sketcher.Constraint("Equal", 48, 0))
sketch1.addConstraint(Sketcher.Constraint("Equal", 39, 10))
sketch1.addConstraint(Sketcher.Constraint("Equal", 21, 29))
sketch1.addConstraint(Sketcher.Constraint("Equal", 18, 34))
sketch1.addConstraint(Sketcher.Constraint("Equal", 16, 36))
sketch1.addConstraint(Sketcher.Constraint("Equal", 14, 38))
sketch1.addConstraint(Sketcher.Constraint("Equal", 0, 52))
sketch1.addConstraint(Sketcher.Constraint("Equal", 44, 54))
sketch1.addConstraint(Sketcher.Constraint("Equal", 54, 58))
sketch1.addConstraint(Sketcher.Constraint("Equal", 56, 60))
sketch1.addConstraint(Sketcher.Constraint("Equal", 58, 62))
sketch1.addConstraint(Sketcher.Constraint("Diameter", 64, Q("2.8 mm")))
sketch1.addConstraint(Sketcher.Constraint("DistanceX", 4, 2, 4, 1, Q("5 mm")))
sketch1.addConstraint(Sketcher.Constraint("DistanceX", 13, 2, 13, 1, Q("3 mm")))
sketch1.addConstraint(Sketcher.Constraint("DistanceX", 53, 2, 53, 1, Q("1 mm")))
sketch1.addConstraint(Sketcher.Constraint("DistanceY", 8, 2, 8, 1, Q("4 mm")))
sketch1.addConstraint(Sketcher.Constraint("DistanceY", 12, 2, 12, 1, Q("6 mm")))
sketch1.addConstraint(Sketcher.Constraint("DistanceY", 26, 2, 26, 1, Q("170 mm")))
sketch1.addConstraint(Sketcher.Constraint("DistanceX", 9, 1, 9, 2, Q("2.5 mm")))
sketch1.addConstraint(Sketcher.Constraint("DistanceX", -1, 1, 0, 2, Q("30 mm")))
sketch1.addConstraint(Sketcher.Constraint("DistanceX", -1, 1, 2, 1, Q("22 mm")))
sketch1.addConstraint(Sketcher.Constraint("DistanceX", -1, 1, 9, 2, Q("16 mm")))
sketch1.addConstraint(Sketcher.Constraint("DistanceX", 19, 2, 19, 1, Q("1.52 mm")))
sketch1.addConstraint(Sketcher.Constraint("DistanceX", 27, 1, 27, 2, Q("3.62 mm")))
sketch1.addConstraint(Sketcher.Constraint("DistanceY", 21, 1, 21, 2, Q("1.62 mm")))
sketch1.addConstraint(Sketcher.Constraint("DistanceX", -1, 1, 20, 3, Q("7.99 mm")))
sketch1.addConstraint(Sketcher.Constraint("DistanceX", 64, 3, -1, 1, Q("0.99 mm")))
sketch1.addConstraint(Sketcher.Constraint("DistanceY", 64, 3, -1, 1, Q("159.01 mm")))
sketch1.addConstraint(Sketcher.Constraint("DistanceY", 66, 3, -1, 1, Q("122.21 mm")))
sketch1.addConstraint(Sketcher.Constraint("DistanceY", 67, 3, -1, 1, Q("114.19 mm")))
sketch1.addConstraint(Sketcher.Constraint("DistanceY", 68, 3, -1, 1, Q("102.21 mm")))
sketch1.addConstraint(Sketcher.Constraint("DistanceY", 70, 3, -1, 1, Q("55.81 mm")))
sketch1.addConstraint(Sketcher.Constraint("DistanceY", 71, 3, -1, 1, Q("47.79 mm")))
sketch1.addConstraint(Sketcher.Constraint("DistanceY", 72, 3, -1, 1, Q("35.81 mm")))
sketch1.addConstraint(Sketcher.Constraint("DistanceX", 1, 2, 1, 1, Q("6.0472 mm")))
sketch1.addConstraint(Sketcher.Constraint("DistanceY", 3, 1, 3, 2, Q("1.6472 mm")))
sketch1.addConstraint(Sketcher.Constraint("DistanceX", 65, 3, -1, 1, Q("0.8132 mm")))
sketch1.addConstraint(Sketcher.Constraint("DistanceY", 65, 3, -1, 1, Q("134.0132 mm")))
sketch1.addConstraint(Sketcher.Constraint("DistanceY", 69, 3, -1, 1, Q("67.6132 mm")))
sketch1.addConstraint(Sketcher.Constraint("DistanceY", 73, 3, -1, 1, Q("10.8132 mm")))
pad1 = body.newObject("PartDesign::Pad", "Pad")
pad1.Profile = sketch1
pad1.Length = 3.6

# Sketch on XY plane
sketch2 = body.newObject("Sketcher::SketchObject", "Sketch001")
sketch2.AttachmentSupport = (doc.getObject("XY_Plane"), [""])
sketch2.MapMode = "FlatFace"
add_polygon(sketch2, [(28, 0), (28, -170), (24, -170), (24, 0)])  # lines 0-3
sketch2.addConstraint(Sketcher.Constraint("Vertical", 0))
sketch2.addConstraint(Sketcher.Constraint("Horizontal", 1))
sketch2.addConstraint(Sketcher.Constraint("Vertical", 2))
sketch2.addConstraint(Sketcher.Constraint("Horizontal", 3))
sketch2.addConstraint(Sketcher.Constraint("PointOnObject", 2, 2, -1))
sketch2.addConstraint(Sketcher.Constraint("DistanceX", 1, 2, 1, 1, Q("4 mm")))
sketch2.addConstraint(Sketcher.Constraint("DistanceY", 0, 2, 0, 1, Q("170 mm")))
sketch2.addConstraint(Sketcher.Constraint("DistanceX", -1, 1, 0, 2, Q("28 mm")))
pocket1 = body.newObject("PartDesign::Pocket", "Pocket")
pocket1.Profile = sketch2
pocket1.Length = 1.8
pocket1.Reversed = True

# Sketch on XY plane
sketch3 = body.newObject("Sketcher::SketchObject", "Sketch002")
sketch3.AttachmentSupport = (doc.getObject("XY_Plane"), [""])
sketch3.MapMode = "FlatFace"
sketch3.AttachmentOffset = App.Placement(Vector(0, 0, 3.6), App.Rotation())
sketch3.addGeometry(Part.ArcOfCircle(Part.Circle(Vector(-3.6, -23.3865, 0), Vector(0, 0, 1), 7.0136), math.radians(90), math.radians(270)), False)
sketch3.addGeometry(Part.LineSegment(Vector(-3.6, -30.4, 0), Vector(2.4, -30.4, 0)), False)
sketch3.addGeometry(Part.ArcOfCircle(Part.Circle(Vector(2.4, -23.3865, 0), Vector(0, 0, 1), 7.0135), math.radians(-90), math.radians(90)), False)
sketch3.addGeometry(Part.LineSegment(Vector(2.4, -16.3729, 0), Vector(-3.6, -16.3729, 0)), False)
sketch3.addConstraint(Sketcher.Constraint("Tangent", 0, 2, 1, 1))
sketch3.addConstraint(Sketcher.Constraint("Tangent", 1, 2, 2, 1))
sketch3.addConstraint(Sketcher.Constraint("Tangent", 2, 2, 3, 1))
sketch3.addConstraint(Sketcher.Constraint("Tangent", 3, 2, 0, 1))
sketch3.addConstraint(Sketcher.Constraint("Horizontal", 1))
sketch3.addConstraint(Sketcher.Constraint("Horizontal", 3))
sketch3.addConstraint(Sketcher.Constraint("DistanceX", 1, 1, 1, 2, Q("6 mm")))
sketch3.addConstraint(Sketcher.Constraint("DistanceX", 0, 3, -1, 1, Q("3.6 mm")))
sketch3.addConstraint(Sketcher.Constraint("DistanceY", 0, 2, -1, 1, Q("30.4 mm")))
sketch3.addConstraint(Sketcher.Constraint("Radius", 0, Q("7.0136 mm")))
pocket2 = body.newObject("PartDesign::Pocket", "Pocket001")
pocket2.Profile = sketch3
pocket2.Type = "ThroughAll"

doc.recompute()
